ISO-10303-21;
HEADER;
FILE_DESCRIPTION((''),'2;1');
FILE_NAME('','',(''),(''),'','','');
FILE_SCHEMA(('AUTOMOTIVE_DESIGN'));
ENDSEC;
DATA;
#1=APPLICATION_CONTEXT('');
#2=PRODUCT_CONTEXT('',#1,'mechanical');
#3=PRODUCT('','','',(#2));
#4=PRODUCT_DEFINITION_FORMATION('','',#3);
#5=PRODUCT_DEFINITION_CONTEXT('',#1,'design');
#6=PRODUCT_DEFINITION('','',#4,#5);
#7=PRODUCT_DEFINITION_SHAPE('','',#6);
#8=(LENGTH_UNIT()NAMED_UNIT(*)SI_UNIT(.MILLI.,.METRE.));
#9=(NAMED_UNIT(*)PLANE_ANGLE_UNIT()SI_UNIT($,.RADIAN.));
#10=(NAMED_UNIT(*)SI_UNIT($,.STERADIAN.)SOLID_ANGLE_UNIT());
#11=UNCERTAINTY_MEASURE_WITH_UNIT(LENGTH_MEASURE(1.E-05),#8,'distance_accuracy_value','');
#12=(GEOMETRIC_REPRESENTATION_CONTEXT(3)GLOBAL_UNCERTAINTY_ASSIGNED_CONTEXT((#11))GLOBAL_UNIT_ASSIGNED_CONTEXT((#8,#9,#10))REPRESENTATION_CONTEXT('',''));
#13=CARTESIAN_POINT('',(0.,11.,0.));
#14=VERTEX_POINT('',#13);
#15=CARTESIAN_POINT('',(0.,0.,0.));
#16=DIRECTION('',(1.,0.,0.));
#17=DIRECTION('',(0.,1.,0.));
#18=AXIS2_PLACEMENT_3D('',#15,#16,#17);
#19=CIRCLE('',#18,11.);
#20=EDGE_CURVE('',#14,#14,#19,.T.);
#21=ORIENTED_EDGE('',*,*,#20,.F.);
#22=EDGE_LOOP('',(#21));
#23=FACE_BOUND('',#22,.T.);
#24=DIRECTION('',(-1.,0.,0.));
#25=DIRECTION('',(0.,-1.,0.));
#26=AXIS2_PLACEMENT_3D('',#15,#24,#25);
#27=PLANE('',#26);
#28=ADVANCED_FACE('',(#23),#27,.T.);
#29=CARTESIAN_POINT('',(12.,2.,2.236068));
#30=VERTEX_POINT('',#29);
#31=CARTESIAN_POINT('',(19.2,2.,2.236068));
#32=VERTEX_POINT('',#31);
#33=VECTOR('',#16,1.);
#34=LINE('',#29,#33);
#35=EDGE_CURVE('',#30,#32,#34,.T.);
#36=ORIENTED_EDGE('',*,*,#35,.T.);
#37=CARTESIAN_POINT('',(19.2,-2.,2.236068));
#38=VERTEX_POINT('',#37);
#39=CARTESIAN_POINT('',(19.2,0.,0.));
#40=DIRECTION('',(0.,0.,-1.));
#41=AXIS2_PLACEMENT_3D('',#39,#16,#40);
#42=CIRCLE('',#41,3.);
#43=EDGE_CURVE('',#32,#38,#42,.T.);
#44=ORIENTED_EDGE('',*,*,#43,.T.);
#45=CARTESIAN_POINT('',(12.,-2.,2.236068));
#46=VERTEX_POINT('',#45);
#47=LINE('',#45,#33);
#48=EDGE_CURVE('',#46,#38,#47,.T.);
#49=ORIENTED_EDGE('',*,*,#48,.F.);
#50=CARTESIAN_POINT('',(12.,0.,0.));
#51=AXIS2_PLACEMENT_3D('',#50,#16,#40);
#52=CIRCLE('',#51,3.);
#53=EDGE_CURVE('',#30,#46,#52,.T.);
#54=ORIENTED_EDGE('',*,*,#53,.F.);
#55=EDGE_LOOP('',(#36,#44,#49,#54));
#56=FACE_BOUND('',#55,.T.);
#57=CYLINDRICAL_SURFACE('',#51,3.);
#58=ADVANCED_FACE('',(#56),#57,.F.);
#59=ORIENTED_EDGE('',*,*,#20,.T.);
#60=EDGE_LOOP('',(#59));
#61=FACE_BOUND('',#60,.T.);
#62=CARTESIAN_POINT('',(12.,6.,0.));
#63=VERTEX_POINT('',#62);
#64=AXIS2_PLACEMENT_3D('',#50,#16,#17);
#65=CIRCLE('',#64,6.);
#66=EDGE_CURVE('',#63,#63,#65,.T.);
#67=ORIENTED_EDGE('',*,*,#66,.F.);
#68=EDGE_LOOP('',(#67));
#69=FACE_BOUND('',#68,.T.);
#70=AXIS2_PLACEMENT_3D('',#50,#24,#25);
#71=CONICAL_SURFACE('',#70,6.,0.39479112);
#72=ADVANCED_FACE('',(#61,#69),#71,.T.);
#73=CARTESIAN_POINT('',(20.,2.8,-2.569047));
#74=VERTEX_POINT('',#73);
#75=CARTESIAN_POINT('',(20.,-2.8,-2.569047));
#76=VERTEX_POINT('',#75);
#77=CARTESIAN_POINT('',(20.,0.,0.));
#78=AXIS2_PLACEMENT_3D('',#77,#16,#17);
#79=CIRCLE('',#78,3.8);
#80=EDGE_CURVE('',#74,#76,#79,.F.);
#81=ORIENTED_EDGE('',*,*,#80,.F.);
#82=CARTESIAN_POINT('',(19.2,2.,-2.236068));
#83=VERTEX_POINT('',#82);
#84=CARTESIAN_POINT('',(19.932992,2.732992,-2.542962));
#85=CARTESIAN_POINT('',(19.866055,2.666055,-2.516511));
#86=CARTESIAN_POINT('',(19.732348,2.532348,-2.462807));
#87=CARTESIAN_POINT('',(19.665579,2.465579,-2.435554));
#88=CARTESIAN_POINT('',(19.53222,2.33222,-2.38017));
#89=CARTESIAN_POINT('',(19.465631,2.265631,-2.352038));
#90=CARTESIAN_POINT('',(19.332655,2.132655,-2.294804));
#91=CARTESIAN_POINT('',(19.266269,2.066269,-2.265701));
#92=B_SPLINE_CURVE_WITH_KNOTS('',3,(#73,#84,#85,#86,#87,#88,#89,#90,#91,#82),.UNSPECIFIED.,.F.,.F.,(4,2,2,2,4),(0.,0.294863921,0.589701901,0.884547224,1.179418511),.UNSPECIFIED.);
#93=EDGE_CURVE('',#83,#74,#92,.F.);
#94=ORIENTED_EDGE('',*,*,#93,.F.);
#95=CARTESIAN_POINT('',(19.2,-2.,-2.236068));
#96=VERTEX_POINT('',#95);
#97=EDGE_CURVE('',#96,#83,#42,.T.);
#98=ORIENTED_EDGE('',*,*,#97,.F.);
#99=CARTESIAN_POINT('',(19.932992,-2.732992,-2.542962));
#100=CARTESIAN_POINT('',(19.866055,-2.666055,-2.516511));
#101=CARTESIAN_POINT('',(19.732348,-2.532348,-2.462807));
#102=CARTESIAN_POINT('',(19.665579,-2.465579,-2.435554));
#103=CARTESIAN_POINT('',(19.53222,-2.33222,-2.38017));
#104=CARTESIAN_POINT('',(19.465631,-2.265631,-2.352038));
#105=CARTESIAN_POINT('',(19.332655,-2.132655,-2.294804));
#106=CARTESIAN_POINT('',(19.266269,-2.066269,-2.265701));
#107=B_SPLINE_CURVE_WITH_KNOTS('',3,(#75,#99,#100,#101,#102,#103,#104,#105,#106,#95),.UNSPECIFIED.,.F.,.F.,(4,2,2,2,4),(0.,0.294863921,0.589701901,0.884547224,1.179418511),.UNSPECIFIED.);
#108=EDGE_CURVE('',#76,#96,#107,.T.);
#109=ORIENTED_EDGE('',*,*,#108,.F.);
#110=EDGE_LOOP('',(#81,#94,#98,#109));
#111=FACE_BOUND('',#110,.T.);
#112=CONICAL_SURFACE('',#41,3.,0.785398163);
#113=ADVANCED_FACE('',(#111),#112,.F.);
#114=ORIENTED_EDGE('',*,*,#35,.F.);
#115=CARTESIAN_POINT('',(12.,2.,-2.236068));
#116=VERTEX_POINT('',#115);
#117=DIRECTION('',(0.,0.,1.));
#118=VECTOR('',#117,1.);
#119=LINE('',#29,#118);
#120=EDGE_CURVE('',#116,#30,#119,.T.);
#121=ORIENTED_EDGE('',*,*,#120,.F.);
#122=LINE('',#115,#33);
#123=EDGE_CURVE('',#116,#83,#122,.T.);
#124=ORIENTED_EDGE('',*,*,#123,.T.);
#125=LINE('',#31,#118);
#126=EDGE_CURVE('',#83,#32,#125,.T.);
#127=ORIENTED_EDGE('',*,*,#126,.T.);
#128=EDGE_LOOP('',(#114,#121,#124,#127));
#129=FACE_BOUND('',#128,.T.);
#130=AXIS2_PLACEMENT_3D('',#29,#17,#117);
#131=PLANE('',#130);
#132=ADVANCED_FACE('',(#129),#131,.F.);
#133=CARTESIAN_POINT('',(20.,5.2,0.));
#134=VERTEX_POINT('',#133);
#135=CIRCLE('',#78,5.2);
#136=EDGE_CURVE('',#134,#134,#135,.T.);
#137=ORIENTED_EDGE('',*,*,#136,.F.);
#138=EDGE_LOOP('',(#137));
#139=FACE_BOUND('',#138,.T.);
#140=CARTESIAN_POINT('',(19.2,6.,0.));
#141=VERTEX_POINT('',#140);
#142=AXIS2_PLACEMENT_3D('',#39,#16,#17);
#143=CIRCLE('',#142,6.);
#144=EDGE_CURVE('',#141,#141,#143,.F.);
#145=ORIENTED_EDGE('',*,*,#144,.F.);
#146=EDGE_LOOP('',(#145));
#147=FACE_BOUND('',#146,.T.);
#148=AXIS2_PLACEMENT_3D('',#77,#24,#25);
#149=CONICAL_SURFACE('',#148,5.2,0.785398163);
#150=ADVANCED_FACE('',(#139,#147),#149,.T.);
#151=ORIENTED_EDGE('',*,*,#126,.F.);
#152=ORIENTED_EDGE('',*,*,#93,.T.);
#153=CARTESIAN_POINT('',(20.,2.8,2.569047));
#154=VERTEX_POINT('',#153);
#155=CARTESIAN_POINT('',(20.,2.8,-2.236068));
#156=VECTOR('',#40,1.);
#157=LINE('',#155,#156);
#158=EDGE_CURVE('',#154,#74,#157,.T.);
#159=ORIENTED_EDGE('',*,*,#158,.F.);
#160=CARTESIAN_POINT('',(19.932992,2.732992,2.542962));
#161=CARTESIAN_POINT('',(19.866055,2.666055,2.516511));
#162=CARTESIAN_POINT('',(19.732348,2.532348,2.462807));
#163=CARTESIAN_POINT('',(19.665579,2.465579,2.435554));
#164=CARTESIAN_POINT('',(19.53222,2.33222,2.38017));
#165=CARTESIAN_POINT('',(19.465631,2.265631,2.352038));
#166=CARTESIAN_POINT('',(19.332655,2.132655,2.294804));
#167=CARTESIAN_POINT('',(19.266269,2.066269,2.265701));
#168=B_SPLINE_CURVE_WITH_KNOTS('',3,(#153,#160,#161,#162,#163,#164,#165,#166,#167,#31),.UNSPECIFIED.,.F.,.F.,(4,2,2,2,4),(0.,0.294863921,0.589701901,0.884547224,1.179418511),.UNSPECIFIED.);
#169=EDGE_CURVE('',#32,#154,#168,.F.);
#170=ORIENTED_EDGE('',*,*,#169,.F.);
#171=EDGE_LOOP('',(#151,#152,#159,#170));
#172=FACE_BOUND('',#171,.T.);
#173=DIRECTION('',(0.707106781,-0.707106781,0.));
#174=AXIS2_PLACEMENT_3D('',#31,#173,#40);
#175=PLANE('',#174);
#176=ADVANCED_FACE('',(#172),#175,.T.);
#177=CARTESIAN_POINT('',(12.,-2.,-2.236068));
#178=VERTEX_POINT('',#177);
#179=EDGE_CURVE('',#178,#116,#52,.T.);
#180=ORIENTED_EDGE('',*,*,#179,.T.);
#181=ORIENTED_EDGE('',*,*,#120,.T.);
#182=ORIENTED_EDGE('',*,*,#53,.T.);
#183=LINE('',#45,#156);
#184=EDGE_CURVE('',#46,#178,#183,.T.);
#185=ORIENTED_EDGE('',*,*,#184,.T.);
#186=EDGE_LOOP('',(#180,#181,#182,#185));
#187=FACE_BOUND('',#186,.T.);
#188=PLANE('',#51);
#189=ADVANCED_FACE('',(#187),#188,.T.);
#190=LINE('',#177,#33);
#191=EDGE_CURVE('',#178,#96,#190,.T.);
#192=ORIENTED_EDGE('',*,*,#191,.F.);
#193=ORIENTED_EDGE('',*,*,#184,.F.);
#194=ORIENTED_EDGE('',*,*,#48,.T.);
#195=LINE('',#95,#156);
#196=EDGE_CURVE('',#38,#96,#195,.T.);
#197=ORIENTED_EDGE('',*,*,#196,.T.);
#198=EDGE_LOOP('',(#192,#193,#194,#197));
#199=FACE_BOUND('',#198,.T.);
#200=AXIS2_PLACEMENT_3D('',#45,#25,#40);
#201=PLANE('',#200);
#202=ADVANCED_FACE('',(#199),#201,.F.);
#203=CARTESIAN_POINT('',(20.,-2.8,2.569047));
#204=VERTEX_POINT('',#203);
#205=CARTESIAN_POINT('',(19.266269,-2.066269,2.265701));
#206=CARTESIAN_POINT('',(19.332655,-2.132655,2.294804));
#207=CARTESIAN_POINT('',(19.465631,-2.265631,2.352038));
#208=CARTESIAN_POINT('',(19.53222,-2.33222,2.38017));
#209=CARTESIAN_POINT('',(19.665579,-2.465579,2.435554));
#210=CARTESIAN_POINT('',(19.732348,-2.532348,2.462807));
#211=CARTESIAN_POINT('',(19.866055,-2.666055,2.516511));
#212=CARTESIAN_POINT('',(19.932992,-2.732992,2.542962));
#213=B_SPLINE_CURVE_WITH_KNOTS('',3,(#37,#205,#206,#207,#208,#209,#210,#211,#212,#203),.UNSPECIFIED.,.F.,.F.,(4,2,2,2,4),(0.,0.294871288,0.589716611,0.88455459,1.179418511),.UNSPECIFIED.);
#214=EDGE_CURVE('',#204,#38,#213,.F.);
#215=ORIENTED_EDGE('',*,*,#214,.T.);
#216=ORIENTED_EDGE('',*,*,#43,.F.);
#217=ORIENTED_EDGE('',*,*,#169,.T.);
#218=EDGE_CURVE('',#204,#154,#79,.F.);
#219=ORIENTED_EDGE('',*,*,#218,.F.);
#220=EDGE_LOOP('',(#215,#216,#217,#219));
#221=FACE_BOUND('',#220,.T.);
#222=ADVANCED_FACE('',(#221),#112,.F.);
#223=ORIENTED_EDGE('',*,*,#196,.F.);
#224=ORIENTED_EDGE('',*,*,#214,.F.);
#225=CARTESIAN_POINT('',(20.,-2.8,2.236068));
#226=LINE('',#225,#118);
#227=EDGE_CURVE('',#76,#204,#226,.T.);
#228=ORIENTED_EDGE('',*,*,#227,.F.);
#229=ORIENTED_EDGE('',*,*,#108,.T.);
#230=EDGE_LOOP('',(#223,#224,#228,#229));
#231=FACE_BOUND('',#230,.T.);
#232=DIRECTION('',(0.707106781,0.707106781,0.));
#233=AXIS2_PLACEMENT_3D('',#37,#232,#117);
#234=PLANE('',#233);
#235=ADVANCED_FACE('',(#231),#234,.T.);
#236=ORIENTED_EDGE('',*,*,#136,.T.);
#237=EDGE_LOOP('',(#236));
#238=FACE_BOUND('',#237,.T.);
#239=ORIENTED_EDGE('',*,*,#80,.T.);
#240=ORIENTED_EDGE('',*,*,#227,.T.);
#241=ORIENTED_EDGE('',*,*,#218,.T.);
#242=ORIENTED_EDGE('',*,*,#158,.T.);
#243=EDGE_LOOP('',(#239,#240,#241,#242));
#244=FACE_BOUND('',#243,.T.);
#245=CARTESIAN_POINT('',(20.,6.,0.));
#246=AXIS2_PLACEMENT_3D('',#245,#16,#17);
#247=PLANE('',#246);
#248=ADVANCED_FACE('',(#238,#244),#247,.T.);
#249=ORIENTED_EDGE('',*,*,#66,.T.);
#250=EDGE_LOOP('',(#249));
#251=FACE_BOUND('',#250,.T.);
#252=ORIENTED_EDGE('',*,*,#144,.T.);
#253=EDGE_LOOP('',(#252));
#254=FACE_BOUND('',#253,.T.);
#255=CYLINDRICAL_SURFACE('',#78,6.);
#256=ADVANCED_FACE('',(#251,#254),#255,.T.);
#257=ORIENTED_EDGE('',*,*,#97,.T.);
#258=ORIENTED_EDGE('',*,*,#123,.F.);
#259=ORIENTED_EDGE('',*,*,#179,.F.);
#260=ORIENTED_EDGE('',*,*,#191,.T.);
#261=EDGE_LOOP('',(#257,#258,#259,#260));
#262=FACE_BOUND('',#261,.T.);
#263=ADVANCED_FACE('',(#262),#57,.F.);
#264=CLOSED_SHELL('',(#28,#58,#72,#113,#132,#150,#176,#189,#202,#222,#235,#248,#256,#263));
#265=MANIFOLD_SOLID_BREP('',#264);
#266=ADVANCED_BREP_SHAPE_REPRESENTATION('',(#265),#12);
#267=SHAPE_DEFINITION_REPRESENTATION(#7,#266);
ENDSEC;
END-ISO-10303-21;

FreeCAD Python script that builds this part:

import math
import FreeCAD as App
import Part
import Sketcher
Q = App.Units.Quantity


def edges_at(feature, points):
    """Names of the edges that pass closest to the given points."""
    edges = feature.Shape.Edges
    near = lambda p: min(range(len(edges)), key=lambda i: edges[i].distToShape(Part.Vertex(*p))[0])
    return sorted({f"Edge{near(p) + 1}" for p in points})

doc = App.newDocument("Part")
body = doc.addObject("PartDesign::Body", "Body")

sketch1 = doc.addObject("Sketcher::SketchObject", "Sketch")
body.addObject(sketch1)
sketch1.AttachmentSupport = (doc.XY_Plane, [""])
sketch1.MapMode = "FlatFace"
sketch1.addGeometry(Part.LineSegment(App.Vector(0, 11, 0), App.Vector(0, 0, 0)), False)
sketch1.addGeometry(Part.LineSegment(App.Vector(0, 0, 0), App.Vector(20, 0, 0)), False)
sketch1.addGeometry(Part.LineSegment(App.Vector(20, 0, 0), App.Vector(20, 6, 0)), False)
sketch1.addGeometry(Part.LineSegment(App.Vector(20, 6, 0), App.Vector(12, 6, 0)), False)
sketch1.addGeometry(Part.LineSegment(App.Vector(12, 6, 0), App.Vector(0, 11, 0)), False)
sketch1.addConstraint(Sketcher.Constraint("Coincident", 0, 2, 1, 1))
sketch1.addConstraint(Sketcher.Constraint("Coincident", 1, 2, 2, 1))
sketch1.addConstraint(Sketcher.Constraint("Coincident", 2, 2, 3, 1))
sketch1.addConstraint(Sketcher.Constraint("Coincident", 3, 2, 4, 1))
sketch1.addConstraint(Sketcher.Constraint("Coincident", 4, 2, 0, 1))
sketch1.addConstraint(Sketcher.Constraint("Vertical", 0))
sketch1.addConstraint(Sketcher.Constraint("Horizontal", 1))
sketch1.addConstraint(Sketcher.Constraint("Vertical", 2))
sketch1.addConstraint(Sketcher.Constraint("Horizontal", 3))
sketch1.addConstraint(Sketcher.Constraint("Coincident", 0, 2, -1, 1))
sketch1.addConstraint(Sketcher.Constraint("DistanceX", 1, 1, 1, 2, Q("20 mm")))
sketch1.addConstraint(Sketcher.Constraint("DistanceX", 3, 2, 3, 1, Q("8 mm")))
sketch1.addConstraint(Sketcher.Constraint("DistanceY", 0, 2, 0, 1, Q("11 mm")))
sketch1.addConstraint(Sketcher.Constraint("DistanceY", 2, 1, 2, 2, Q("6 mm")))
revolution = doc.addObject("PartDesign::Revolution", "Revolution")
body.addObject(revolution)
revolution.Profile = sketch1
revolution.ReferenceAxis = (sketch1, ["H_Axis"])
revolution.Angle = 360

sketch2 = doc.addObject("Sketcher::SketchObject", "Sketch001")
body.addObject(sketch2)
sketch2.AttachmentSupport = (doc.YZ_Plane, [""])
sketch2.MapMode = "FlatFace"
sketch2.AttachmentOffset = App.Placement(App.Vector(0, 0, 20), App.Rotation())
sketch2.addGeometry(Part.LineSegment(App.Vector(2, -2.2, 0), App.Vector(2, 2.2, 0)), False)
sketch2.addGeometry(Part.ArcOfCircle(Part.Circle(App.Vector(0, 0, 0), App.Vector(0, 0, 1), 3), math.radians(48), math.radians(132)), False)
sketch2.addGeometry(Part.LineSegment(App.Vector(-2, 2.2, 0), App.Vector(-2, -2.2, 0)), False)
sketch2.addGeometry(Part.ArcOfCircle(Part.Circle(App.Vector(0, 0, 0), App.Vector(0, 0, 1), 3), math.radians(-132), math.radians(-48)), False)
sketch2.addConstraint(Sketcher.Constraint("Coincident", 0, 2, 1, 1))
sketch2.addConstraint(Sketcher.Constraint("Coincident", 1, 2, 2, 1))
sketch2.addConstraint(Sketcher.Constraint("Coincident", 2, 2, 3, 1))
sketch2.addConstraint(Sketcher.Constraint("Coincident", 3, 2, 0, 1))
sketch2.addConstraint(Sketcher.Constraint("Vertical", 0))
sketch2.addConstraint(Sketcher.Constraint("Vertical", 2))
sketch2.addConstraint(Sketcher.Constraint("Coincident", 1, 3, -1, 1))
sketch2.addConstraint(Sketcher.Constraint("Coincident", 3, 3, -1, 1))
sketch2.addConstraint(Sketcher.Constraint("Equal", 1, 3))
sketch2.addConstraint(Sketcher.Constraint("Horizontal", 0, 2, 1, 2))
sketch2.addConstraint(Sketcher.Constraint("Radius", 1, Q("3 mm")))
sketch2.addConstraint(Sketcher.Constraint("DistanceX", -1, 1, 0, 2, Q("2 mm")))
pocket1 = doc.addObject("PartDesign::Pocket", "Pocket")
body.addObject(pocket1)
pocket1.Profile = sketch2
pocket1.Length = 8
doc.recompute()

chamfer = doc.addObject("PartDesign::Chamfer", "Chamfer")
body.addObject(chamfer)
chamfer.Base = (pocket1, edges_at(pocket1, [
    (20, 0, 3),
    (20, -2, 0),
    (20, 0, -3),
    (20, 2, 0),
    (20, -6, 0),
]))
chamfer.Size = 0.8

doc.recompute()
